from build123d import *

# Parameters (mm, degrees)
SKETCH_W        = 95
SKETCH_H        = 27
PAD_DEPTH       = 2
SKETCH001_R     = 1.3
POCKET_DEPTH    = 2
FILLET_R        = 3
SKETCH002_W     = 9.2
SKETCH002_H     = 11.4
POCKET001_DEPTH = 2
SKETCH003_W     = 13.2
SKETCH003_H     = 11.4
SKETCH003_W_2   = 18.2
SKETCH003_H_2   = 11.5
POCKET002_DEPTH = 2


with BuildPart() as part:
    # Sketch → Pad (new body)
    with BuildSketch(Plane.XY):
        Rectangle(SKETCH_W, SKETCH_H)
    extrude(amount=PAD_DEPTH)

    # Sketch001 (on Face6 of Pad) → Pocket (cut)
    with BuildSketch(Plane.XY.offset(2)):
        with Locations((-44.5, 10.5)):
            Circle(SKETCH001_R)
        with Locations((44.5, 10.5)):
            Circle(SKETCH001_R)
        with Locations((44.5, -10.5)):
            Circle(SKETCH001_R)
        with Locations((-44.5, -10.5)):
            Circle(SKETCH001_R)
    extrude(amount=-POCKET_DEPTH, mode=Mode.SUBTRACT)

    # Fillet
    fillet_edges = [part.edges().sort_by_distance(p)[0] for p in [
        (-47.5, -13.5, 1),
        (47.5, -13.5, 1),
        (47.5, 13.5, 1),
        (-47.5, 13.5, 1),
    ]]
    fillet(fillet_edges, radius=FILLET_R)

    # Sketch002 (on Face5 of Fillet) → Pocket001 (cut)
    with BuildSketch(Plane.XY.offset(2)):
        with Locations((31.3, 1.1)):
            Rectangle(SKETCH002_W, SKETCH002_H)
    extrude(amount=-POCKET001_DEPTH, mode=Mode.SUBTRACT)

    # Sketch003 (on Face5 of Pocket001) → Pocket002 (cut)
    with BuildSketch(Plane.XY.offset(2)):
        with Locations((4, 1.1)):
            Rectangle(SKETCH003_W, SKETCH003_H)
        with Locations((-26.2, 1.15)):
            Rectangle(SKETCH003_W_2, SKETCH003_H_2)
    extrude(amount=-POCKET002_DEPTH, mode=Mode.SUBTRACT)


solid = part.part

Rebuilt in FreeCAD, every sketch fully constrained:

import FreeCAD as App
import Part
import Sketcher

V = App.Vector


def edges_at(feature, points):
    """Names of the edges that pass closest to the given points."""
    edges = feature.Shape.Edges
    near = lambda p: min(range(len(edges)), key=lambda i: edges[i].distToShape(Part.Vertex(*p))[0])
    return sorted({f"Edge{near(p) + 1}" for p in points})

doc = App.newDocument("Part")
params = doc.addObject("Spreadsheet::Sheet", "Params")
for row, (alias, value) in enumerate([
    ("sketch1_width", "95 mm"),
    ("sketch1_height", "27 mm"),
    ("pad1_length", "2 mm"),
    ("sketch2_diameter", "2.6 mm"),
    ("pocket1_length", "2 mm"),
    ("fillet_radius", "3 mm"),
    ("sketch3_width", "9.2 mm"),
    ("sketch3_height", "11.4 mm"),
    ("pocket2_length", "2 mm"),
    ("sketch4_width", "13.2 mm"),
    ("sketch4_width2", "18.2 mm"),
    ("sketch4_height", "11.4 mm"),
    ("sketch4_height2", "11.5 mm"),
    ("pocket3_length", "2 mm"),
], start=1):
    params.set(f"A{row}", alias)
    params.set(f"B{row}", "=" + value)
    params.setAlias(f"B{row}", alias)

body = doc.addObject("PartDesign::Body", "Body")

# Sketch on XY plane
sketch1 = body.newObject("Sketcher::SketchObject", "Sketch")
sketch1.AttachmentSupport = (doc.getObject("XY_Plane"), [""])
sketch1.MapMode = "FlatFace"
sketch1.addGeometry([
    Part.LineSegment(V(-47.5, 13.5, 0), V(-47.5, -13.5, 0)),
    Part.LineSegment(V(-47.5, -13.5, 0), V(47.5, -13.5, 0)),
    Part.LineSegment(V(47.5, -13.5, 0), V(47.5, 13.5, 0)),
    Part.LineSegment(V(47.5, 13.5, 0), V(-47.5, 13.5, 0)),
], False)
sketch1.addConstraint([
    Sketcher.Constraint("Coincident", 0, 2, 1, 1),
    Sketcher.Constraint("Coincident", 1, 2, 2, 1),
    Sketcher.Constraint("Coincident", 2, 2, 3, 1),
    Sketcher.Constraint("Coincident", 3, 2, 0, 1),
    Sketcher.Constraint("Vertical", 0),
    Sketcher.Constraint("Horizontal", 1),
    Sketcher.Constraint("Vertical", 2),
    Sketcher.Constraint("Horizontal", 3),
    Sketcher.Constraint("Symmetric", 0, 2, 2, 2, -1, 1),
    Sketcher.Constraint("DistanceX", 1, 1, 1, 2, 95.0),
    Sketcher.Constraint("DistanceY", 0, 2, 0, 1, 27.0),
])
sketch1.setExpression("Constraints[9]", "Params.sketch1_width")
sketch1.setExpression("Constraints[10]", "Params.sketch1_height")
pad1 = body.newObject("PartDesign::Pad", "Pad")
pad1.Profile = sketch1
pad1.setExpression("Length", "Params.pad1_length")

# Sketch on XY plane
sketch2 = body.newObject("Sketcher::SketchObject", "Sketch001")
sketch2.AttachmentSupport = (doc.getObject("XY_Plane"), [""])
sketch2.MapMode = "FlatFace"
sketch2.AttachmentOffset = App.Placement(V(0, 0, 2), App.Rotation())
sketch2.addGeometry([
    Part.Circle(V(-44.5, 10.5, 0), V(0, 0, 1), 1.3),
    Part.Circle(V(44.5, 10.5, 0), V(0, 0, 1), 1.3),
    Part.Circle(V(44.5, -10.5, 0), V(0, 0, 1), 1.3),
    Part.Circle(V(-44.5, -10.5, 0), V(0, 0, 1), 1.3),
], False)
sketch2.addConstraint([
    Sketcher.Constraint("Equal", 0, 1),
    Sketcher.Constraint("Equal", 1, 2),
    Sketcher.Constraint("Equal", 2, 3),
    Sketcher.Constraint("Symmetric", 0, 3, 2, 3, -1, 1),
    Sketcher.Constraint("Symmetric", 1, 3, 3, 3, -1, 1),
    Sketcher.Constraint("Symmetric", 0, 3, 1, 3, -2),
    Sketcher.Constraint("Diameter", 0, 2.6),
    Sketcher.Constraint("DistanceX", 0, 3, 1, 3, 89.0),
    Sketcher.Constraint("DistanceY", 2, 3, 1, 3, 21.0),
])
sketch2.setExpression("Constraints[6]", "Params.sketch2_diameter")
pocket1 = body.newObject("PartDesign::Pocket", "Pocket")
pocket1.Profile = sketch2
pocket1.setExpression("Length", "Params.pocket1_length")
doc.recompute()

fillet = body.newObject("PartDesign::Fillet", "Fillet")
fillet.Base = (pocket1, edges_at(pocket1, [
    (-47.5, -13.5, 1),
    (47.5, -13.5, 1),
    (47.5, 13.5, 1),
    (-47.5, 13.5, 1),
]))
fillet.setExpression("Radius", "Params.fillet_radius")

# Sketch on XY plane
sketch3 = body.newObject("Sketcher::SketchObject", "Sketch002")
sketch3.AttachmentSupport = (doc.getObject("XY_Plane"), [""])
sketch3.MapMode = "FlatFace"
sketch3.AttachmentOffset = App.Placement(V(0, 0, 2), App.Rotation())
sketch3.addGeometry([
    Part.LineSegment(V(26.7, 6.8, 0), V(26.7, -4.6, 0)),
    Part.LineSegment(V(26.7, -4.6, 0), V(35.9, -4.6, 0)),
    Part.LineSegment(V(35.9, -4.6, 0), V(35.9, 6.8, 0)),
    Part.LineSegment(V(35.9, 6.8, 0), V(26.7, 6.8, 0)),
], False)
sketch3.addConstraint([
    Sketcher.Constraint("Coincident", 0, 2, 1, 1),
    Sketcher.Constraint("Coincident", 1, 2, 2, 1),
    Sketcher.Constraint("Coincident", 2, 2, 3, 1),
    Sketcher.Constraint("Coincident", 3, 2, 0, 1),
    Sketcher.Constraint("Vertical", 0),
    Sketcher.Constraint("Horizontal", 1),
    Sketcher.Constraint("Vertical", 2),
    Sketcher.Constraint("Horizontal", 3),
    Sketcher.Constraint("DistanceX", 1, 1, 1, 2, 9.2),
    Sketcher.Constraint("DistanceY", 0, 2, 0, 1, 11.4),
    Sketcher.Constraint("DistanceX", -1, 1, 0, 2, 26.7),
    Sketcher.Constraint("DistanceY", 0, 2, -1, 1, 4.6),
])
sketch3.setExpression("Constraints[8]", "Params.sketch3_width")
sketch3.setExpression("Constraints[9]", "Params.sketch3_height")
pocket2 = body.newObject("PartDesign::Pocket", "Pocket001")
pocket2.Profile = sketch3
pocket2.setExpression("Length", "Params.pocket2_length")

# Sketch on XY plane
sketch4 = body.newObject("Sketcher::SketchObject", "Sketch003")
sketch4.AttachmentSupport = (doc.getObject("XY_Plane"), [""])
sketch4.MapMode = "FlatFace"
sketch4.AttachmentOffset = App.Placement(V(0, 0, 2), App.Rotation())
sketch4.addGeometry([
    Part.LineSegment(V(-2.6, 6.8, 0), V(-2.6, -4.6, 0)),  # 0
    Part.LineSegment(V(-2.6, -4.6, 0), V(10.6, -4.6, 0)),  # 1
    Part.LineSegment(V(10.6, -4.6, 0), V(10.6, 6.8, 0)),  # 2
    Part.LineSegment(V(10.6, 6.8, 0), V(-2.6, 6.8, 0)),  # 3
    Part.LineSegment(V(-35.3, 6.9, 0), V(-35.3, -4.6, 0)),  # 4
    Part.LineSegment(V(-35.3, -4.6, 0), V(-17.1, -4.6, 0)),  # 5
    Part.LineSegment(V(-17.1, -4.6, 0), V(-17.1, 6.9, 0)),  # 6
    Part.LineSegment(V(-17.1, 6.9, 0), V(-35.3, 6.9, 0)),  # 7
], False)
sketch4.addConstraint([
    Sketcher.Constraint("Coincident", 0, 2, 1, 1),
    Sketcher.Constraint("Coincident", 1, 2, 2, 1),
    Sketcher.Constraint("Coincident", 2, 2, 3, 1),
    Sketcher.Constraint("Coincident", 3, 2, 0, 1),
    Sketcher.Constraint("Coincident", 4, 2, 5, 1),
    Sketcher.Constraint("Coincident", 5, 2, 6, 1),
    Sketcher.Constraint("Coincident", 6, 2, 7, 1),
    Sketcher.Constraint("Coincident", 7, 2, 4, 1),
    Sketcher.Constraint("Vertical", 0),
    Sketcher.Constraint("Horizontal", 1),
    Sketcher.Constraint("Vertical", 2),
    Sketcher.Constraint("Horizontal", 3),
    Sketcher.Constraint("Vertical", 4),
    Sketcher.Constraint("Horizontal", 5),
    Sketcher.Constraint("Vertical", 6),
    Sketcher.Constraint("Horizontal", 7),
    Sketcher.Constraint("Horizontal", 1, 2, 4, 2),
    Sketcher.Constraint("DistanceX", 1, 1, 1, 2, 13.2),
    Sketcher.Constraint("DistanceX", 5, 1, 5, 2, 18.2),
    Sketcher.Constraint("DistanceY", 0, 2, 0, 1, 11.4),
    Sketcher.Constraint("DistanceY", 4, 2, 4, 1, 11.5),
    Sketcher.Constraint("DistanceX", 0, 2, -1, 1, 2.6),
    Sketcher.Constraint("DistanceY", 0, 2, -1, 1, 4.6),
    Sketcher.Constraint("DistanceX", 4, 2, -1, 1, 35.3),
])
sketch4.setExpression("Constraints[17]", "Params.sketch4_width")
sketch4.setExpression("Constraints[18]", "Params.sketch4_width2")
sketch4.setExpression("Constraints[19]", "Params.sketch4_height")
sketch4.setExpression("Constraints[20]", "Params.sketch4_height2")
pocket3 = body.newObject("PartDesign::Pocket", "Pocket002")
pocket3.Profile = sketch4
pocket3.setExpression("Length", "Params.pocket3_length")

doc.recompute()
